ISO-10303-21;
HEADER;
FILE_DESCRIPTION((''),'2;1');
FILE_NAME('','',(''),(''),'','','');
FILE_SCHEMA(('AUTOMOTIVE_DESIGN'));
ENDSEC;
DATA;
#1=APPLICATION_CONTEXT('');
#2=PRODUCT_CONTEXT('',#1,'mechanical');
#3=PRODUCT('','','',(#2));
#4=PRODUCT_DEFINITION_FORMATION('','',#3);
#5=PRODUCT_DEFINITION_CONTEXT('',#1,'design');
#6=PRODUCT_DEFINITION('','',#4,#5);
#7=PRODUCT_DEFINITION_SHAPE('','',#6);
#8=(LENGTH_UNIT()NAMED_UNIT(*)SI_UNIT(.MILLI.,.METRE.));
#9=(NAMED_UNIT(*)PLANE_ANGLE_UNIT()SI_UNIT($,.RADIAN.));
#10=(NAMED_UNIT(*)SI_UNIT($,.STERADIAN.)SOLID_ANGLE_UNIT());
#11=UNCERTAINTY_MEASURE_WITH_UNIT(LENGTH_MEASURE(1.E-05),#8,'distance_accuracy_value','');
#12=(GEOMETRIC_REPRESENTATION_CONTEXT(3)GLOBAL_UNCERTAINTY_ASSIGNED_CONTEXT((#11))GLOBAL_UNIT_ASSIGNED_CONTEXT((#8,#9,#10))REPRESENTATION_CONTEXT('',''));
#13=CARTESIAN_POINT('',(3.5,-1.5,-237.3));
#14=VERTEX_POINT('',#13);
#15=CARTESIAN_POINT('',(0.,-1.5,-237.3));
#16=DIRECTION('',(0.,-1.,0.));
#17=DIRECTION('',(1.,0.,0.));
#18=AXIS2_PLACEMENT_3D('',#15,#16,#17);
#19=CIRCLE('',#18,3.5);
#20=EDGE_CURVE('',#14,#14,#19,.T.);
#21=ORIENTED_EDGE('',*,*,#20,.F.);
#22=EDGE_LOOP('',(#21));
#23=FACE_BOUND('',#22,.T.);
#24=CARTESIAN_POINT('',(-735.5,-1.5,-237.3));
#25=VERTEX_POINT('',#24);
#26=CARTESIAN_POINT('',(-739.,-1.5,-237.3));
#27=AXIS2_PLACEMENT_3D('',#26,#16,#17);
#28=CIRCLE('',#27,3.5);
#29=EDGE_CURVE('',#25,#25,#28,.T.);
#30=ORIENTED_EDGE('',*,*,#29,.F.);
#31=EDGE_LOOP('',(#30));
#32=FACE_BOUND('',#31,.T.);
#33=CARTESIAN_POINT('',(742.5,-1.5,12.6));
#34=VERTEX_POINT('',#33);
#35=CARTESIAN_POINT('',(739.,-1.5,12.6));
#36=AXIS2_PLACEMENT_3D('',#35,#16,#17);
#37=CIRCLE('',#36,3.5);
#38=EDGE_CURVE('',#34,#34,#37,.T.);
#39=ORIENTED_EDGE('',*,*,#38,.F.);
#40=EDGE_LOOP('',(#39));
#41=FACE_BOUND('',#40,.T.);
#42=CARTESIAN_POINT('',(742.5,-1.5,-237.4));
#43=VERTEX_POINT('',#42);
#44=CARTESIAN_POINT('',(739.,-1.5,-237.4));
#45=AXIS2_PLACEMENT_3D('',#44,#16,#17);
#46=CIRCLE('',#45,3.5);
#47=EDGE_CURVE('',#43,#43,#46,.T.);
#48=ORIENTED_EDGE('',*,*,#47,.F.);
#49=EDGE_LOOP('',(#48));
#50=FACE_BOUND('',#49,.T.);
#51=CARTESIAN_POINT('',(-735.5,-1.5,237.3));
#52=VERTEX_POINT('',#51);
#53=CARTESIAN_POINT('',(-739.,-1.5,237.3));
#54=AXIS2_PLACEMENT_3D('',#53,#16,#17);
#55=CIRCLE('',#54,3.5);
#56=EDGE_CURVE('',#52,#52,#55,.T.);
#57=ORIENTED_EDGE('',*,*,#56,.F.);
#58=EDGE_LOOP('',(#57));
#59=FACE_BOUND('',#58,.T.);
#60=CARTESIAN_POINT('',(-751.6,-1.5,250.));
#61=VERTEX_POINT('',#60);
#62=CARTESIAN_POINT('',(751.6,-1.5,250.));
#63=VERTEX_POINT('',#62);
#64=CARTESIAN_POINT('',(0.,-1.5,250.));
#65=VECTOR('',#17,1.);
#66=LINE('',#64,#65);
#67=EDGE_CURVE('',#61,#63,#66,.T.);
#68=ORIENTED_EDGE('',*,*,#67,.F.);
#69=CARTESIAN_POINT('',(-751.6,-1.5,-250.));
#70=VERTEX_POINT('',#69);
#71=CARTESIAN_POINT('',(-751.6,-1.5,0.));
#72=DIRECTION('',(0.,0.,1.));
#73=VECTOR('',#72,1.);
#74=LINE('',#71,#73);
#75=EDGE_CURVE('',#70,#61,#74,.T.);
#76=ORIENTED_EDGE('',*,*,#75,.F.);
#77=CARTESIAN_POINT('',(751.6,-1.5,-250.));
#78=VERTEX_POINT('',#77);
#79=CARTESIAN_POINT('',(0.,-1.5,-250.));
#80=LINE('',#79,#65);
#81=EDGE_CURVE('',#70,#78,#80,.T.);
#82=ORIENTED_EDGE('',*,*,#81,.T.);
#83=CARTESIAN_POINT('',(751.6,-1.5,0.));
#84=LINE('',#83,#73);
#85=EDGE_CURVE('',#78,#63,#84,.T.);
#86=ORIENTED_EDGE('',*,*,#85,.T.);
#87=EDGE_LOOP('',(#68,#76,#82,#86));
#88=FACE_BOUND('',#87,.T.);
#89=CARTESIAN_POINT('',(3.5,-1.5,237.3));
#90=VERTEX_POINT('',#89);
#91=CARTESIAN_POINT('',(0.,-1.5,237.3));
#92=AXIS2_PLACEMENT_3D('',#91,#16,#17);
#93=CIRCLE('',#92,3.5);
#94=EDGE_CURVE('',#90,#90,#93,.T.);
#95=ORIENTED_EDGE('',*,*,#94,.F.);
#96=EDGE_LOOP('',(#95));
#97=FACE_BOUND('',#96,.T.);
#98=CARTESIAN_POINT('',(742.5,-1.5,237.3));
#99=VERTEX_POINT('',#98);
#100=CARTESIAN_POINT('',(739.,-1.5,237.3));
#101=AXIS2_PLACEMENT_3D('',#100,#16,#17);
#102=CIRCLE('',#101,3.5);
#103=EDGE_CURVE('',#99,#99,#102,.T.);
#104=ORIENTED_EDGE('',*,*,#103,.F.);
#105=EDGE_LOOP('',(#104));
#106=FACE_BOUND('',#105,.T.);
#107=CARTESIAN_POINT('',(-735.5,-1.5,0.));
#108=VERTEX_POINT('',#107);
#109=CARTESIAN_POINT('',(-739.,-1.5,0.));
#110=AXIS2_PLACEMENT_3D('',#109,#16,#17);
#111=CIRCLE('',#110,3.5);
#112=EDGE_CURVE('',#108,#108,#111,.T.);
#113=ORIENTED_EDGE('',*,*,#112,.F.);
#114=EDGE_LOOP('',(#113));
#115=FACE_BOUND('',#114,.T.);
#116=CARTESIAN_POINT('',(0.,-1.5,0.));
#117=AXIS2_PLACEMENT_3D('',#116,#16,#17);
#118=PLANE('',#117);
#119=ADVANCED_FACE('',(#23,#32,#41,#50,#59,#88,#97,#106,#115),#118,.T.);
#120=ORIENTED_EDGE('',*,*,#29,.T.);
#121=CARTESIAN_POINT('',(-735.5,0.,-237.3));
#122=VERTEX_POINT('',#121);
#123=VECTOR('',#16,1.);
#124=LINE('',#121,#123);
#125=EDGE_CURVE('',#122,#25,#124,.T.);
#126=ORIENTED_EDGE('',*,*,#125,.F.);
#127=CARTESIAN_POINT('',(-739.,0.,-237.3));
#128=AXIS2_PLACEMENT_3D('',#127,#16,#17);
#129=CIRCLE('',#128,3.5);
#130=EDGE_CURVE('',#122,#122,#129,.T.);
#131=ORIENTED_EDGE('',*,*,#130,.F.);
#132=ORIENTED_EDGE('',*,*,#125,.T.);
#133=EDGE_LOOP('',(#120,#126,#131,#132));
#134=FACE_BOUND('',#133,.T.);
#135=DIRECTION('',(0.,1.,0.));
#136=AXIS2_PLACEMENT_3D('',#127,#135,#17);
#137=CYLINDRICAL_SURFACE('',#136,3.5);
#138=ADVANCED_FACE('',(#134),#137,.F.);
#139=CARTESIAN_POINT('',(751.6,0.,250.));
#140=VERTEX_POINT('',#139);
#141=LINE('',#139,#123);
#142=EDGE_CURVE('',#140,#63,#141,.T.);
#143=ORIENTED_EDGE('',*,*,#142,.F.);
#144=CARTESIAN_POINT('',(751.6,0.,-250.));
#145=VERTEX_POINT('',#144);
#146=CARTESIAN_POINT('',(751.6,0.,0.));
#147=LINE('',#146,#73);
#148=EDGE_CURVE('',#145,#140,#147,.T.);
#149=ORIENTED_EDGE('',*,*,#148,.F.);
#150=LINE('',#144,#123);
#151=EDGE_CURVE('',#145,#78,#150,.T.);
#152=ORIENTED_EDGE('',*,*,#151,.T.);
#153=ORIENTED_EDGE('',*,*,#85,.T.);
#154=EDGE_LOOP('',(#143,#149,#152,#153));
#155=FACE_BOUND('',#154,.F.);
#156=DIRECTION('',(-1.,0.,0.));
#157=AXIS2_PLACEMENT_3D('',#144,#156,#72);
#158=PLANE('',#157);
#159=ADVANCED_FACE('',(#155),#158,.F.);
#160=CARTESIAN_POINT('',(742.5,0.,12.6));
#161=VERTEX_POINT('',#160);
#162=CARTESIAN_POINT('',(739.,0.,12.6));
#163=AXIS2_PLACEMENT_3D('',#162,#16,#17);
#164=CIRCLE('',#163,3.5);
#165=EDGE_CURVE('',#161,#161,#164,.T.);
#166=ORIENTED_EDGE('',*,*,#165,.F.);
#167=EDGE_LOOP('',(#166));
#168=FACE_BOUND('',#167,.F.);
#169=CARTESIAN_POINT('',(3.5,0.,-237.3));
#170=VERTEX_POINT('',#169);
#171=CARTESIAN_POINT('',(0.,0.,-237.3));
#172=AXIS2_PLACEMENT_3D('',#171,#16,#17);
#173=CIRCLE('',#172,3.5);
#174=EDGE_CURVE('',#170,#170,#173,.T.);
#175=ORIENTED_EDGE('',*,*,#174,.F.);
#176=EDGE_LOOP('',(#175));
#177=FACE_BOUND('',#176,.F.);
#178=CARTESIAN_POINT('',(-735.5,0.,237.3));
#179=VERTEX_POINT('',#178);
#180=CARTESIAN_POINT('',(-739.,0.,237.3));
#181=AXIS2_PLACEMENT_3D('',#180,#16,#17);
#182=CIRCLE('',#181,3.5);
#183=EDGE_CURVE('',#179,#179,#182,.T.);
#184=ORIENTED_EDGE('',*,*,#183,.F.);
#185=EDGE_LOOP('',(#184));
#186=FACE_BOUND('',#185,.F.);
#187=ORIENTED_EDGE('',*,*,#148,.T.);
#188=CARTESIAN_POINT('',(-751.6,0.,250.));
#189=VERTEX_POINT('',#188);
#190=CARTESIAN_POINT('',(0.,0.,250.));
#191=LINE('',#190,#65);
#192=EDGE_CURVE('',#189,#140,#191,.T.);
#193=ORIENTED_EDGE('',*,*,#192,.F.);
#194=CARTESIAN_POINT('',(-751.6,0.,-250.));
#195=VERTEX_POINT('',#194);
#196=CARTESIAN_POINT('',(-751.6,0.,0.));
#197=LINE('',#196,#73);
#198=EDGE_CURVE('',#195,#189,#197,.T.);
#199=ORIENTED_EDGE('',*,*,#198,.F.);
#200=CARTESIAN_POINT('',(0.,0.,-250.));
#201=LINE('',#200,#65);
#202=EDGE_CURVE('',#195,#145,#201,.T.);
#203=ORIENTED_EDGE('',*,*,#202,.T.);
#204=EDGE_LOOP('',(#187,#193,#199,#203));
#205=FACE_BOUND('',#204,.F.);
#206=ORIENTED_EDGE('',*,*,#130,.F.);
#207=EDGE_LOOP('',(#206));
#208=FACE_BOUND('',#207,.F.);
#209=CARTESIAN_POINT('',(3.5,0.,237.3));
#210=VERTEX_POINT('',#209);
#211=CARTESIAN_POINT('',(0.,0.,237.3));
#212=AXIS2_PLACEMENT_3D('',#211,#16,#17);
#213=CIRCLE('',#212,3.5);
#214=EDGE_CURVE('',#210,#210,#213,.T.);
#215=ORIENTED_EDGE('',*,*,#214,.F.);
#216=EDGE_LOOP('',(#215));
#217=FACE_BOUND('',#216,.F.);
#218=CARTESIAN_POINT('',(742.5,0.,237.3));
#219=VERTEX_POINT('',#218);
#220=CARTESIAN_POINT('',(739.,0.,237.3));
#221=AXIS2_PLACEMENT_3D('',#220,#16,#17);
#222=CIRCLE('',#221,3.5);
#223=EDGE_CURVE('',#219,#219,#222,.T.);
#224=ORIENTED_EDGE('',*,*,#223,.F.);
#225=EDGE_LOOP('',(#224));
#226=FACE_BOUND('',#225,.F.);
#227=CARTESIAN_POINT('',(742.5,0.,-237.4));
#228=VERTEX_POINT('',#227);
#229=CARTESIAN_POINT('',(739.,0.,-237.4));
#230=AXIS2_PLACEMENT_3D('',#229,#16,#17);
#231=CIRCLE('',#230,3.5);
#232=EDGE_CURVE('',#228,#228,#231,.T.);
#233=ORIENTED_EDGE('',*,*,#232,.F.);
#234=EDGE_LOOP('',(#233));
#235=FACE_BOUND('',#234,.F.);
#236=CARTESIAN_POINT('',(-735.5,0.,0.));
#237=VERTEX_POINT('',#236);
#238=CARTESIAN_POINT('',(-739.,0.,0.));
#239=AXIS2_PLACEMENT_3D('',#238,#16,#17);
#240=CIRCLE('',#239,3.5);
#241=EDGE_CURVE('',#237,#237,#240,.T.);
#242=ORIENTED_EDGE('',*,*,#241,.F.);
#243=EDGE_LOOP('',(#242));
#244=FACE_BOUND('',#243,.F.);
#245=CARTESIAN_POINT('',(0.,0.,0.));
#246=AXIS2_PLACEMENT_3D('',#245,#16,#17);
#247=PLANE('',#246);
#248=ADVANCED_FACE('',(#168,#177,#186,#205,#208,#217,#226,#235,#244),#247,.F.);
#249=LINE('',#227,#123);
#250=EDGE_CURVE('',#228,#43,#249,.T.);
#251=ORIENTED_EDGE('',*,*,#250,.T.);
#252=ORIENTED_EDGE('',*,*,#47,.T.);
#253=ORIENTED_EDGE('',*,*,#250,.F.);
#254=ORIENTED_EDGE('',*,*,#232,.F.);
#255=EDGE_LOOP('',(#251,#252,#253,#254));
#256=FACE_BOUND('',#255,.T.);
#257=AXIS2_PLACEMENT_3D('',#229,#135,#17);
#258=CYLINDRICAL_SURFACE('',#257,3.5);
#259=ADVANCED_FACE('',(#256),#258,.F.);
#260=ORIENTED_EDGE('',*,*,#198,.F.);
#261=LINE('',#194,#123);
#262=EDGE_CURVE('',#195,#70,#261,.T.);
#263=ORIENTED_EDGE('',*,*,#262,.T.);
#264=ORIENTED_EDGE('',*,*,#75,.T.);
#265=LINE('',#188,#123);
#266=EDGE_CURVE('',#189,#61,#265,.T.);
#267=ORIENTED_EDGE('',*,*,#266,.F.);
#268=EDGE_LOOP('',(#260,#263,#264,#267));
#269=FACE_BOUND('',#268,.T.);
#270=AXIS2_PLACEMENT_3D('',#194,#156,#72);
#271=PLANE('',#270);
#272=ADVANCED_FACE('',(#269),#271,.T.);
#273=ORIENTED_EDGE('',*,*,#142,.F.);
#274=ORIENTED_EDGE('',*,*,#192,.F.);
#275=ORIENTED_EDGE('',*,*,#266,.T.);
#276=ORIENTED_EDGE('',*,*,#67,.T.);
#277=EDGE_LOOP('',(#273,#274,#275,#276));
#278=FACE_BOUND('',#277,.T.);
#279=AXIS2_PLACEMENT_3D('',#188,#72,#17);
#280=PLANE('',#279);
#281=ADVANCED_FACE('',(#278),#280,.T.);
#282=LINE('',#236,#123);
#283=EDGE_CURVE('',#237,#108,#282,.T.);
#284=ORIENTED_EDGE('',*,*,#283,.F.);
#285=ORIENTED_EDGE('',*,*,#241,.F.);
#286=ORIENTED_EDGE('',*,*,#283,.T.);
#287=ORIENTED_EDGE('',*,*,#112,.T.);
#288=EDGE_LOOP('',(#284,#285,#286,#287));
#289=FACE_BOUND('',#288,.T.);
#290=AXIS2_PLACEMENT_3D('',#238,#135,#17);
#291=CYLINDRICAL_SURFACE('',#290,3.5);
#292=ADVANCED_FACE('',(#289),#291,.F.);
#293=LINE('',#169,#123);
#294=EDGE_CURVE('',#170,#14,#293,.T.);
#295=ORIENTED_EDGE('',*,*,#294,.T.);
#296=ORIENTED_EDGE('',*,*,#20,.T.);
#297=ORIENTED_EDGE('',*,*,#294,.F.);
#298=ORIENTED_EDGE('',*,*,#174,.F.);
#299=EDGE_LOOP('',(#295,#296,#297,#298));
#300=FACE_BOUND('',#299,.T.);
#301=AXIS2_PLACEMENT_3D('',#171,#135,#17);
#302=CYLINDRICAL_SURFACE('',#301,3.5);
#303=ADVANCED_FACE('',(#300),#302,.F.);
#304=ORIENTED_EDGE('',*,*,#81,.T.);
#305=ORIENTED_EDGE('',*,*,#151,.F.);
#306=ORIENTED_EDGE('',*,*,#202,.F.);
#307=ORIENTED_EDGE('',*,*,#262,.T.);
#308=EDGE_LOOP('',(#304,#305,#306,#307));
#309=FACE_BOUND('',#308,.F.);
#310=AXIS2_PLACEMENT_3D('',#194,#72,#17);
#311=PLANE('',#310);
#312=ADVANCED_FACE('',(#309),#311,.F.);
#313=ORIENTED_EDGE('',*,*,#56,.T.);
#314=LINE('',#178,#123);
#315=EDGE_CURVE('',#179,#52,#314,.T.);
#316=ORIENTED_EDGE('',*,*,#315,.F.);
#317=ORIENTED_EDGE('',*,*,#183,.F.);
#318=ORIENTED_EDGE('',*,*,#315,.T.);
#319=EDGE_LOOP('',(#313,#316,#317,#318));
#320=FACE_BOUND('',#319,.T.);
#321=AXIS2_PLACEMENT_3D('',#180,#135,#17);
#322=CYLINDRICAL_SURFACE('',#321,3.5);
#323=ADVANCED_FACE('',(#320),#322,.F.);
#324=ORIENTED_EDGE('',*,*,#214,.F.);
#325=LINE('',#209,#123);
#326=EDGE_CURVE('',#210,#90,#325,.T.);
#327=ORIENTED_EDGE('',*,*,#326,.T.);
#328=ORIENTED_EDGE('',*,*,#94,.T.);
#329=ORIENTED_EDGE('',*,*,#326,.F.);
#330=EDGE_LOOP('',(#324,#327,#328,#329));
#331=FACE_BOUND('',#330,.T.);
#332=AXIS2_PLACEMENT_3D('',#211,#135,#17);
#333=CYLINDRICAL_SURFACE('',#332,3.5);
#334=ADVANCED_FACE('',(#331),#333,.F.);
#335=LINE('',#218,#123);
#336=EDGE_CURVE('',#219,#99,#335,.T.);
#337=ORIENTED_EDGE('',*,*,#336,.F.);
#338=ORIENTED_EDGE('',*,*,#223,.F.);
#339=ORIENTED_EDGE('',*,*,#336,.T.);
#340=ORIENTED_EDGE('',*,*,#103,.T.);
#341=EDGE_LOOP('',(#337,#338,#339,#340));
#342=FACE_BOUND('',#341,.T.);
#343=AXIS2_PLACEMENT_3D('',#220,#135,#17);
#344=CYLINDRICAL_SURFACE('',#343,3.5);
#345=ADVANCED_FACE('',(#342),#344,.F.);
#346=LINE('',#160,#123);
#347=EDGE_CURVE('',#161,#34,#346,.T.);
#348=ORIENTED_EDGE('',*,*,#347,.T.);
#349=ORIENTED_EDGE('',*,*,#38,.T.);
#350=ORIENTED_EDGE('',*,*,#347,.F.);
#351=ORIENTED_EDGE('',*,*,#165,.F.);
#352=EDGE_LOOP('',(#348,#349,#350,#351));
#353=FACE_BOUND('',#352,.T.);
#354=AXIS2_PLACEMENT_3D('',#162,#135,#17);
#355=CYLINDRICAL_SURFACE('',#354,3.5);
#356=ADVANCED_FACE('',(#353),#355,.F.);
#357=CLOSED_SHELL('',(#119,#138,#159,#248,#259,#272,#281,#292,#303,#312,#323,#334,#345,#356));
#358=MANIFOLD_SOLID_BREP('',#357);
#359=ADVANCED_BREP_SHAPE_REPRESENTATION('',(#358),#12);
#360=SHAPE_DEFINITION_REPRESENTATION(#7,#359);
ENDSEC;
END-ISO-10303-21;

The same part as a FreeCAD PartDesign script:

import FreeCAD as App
import Part
import Sketcher
Q = App.Units.Quantity


def add_polygon(sketch, points):
    """Adds a closed chain of lines whose ends are joined by coincident constraints."""
    first, n = sketch.GeometryCount, len(points)
    for a, b in zip(points, points[1:] + points[:1]):
        sketch.addGeometry(Part.LineSegment(App.Vector(*a, 0), App.Vector(*b, 0)), False)
    for i in range(n):
        sketch.addConstraint(Sketcher.Constraint("Coincident", first + i, 2, first + (i + 1) % n, 1))

doc = App.newDocument("Part")
body = doc.addObject("PartDesign::Body", "Body")

sketch1 = doc.addObject("Sketcher::SketchObject", "Sketch")
body.addObject(sketch1)
sketch1.AttachmentSupport = (doc.XZ_Plane, [""])
sketch1.MapMode = "FlatFace"
add_polygon(sketch1, [(-751.6, 250), (-751.6, -250), (751.6, -250), (751.6, 250)])
sketch1.addGeometry(Part.Circle(App.Vector(-739, -237.3, 0), App.Vector(0, 0, 1), 3.5), False)
sketch1.addGeometry(Part.Circle(App.Vector(0, -237.3, 0), App.Vector(0, 0, 1), 3.5), False)
sketch1.addGeometry(Part.Circle(App.Vector(739, -237.4, 0), App.Vector(0, 0, 1), 3.5), False)
sketch1.addGeometry(Part.Circle(App.Vector(-739, 0, 0), App.Vector(0, 0, 1), 3.5), False)
sketch1.addGeometry(Part.Circle(App.Vector(-739, 237.3, 0), App.Vector(0, 0, 1), 3.5), False)
sketch1.addGeometry(Part.Circle(App.Vector(739, 12.6, 0), App.Vector(0, 0, 1), 3.5), False)
sketch1.addGeometry(Part.Circle(App.Vector(0, 237.3, 0), App.Vector(0, 0, 1), 3.5), False)
sketch1.addGeometry(Part.Circle(App.Vector(739, 237.3, 0), App.Vector(0, 0, 1), 3.5), False)
sketch1.addConstraint([
    Sketcher.Constraint("Vertical", 0),
    Sketcher.Constraint("Horizontal", 1),
    Sketcher.Constraint("Vertical", 2),
    Sketcher.Constraint("Horizontal", 3),
    Sketcher.Constraint("Equal", 4, 5),
    Sketcher.Constraint("Equal", 5, 6),
    Sketcher.Constraint("Equal", 6, 7),
    Sketcher.Constraint("Equal", 7, 8),
    Sketcher.Constraint("Equal", 8, 9),
    Sketcher.Constraint("Equal", 9, 10),
    Sketcher.Constraint("Equal", 10, 11),
    Sketcher.Constraint("Symmetric", 5, 3, 10, 3, -1, 1),
    Sketcher.Constraint("Symmetric", 4, 3, 11, 3, -1, 1),
    Sketcher.Constraint("Symmetric", 0, 2, 2, 2, -1, 1),
    Sketcher.Constraint("Symmetric", 8, 3, 11, 3, -2),
    Sketcher.Constraint("PointOnObject", 5, 3, -2),
    Sketcher.Constraint("PointOnObject", 7, 3, -1),
    Sketcher.Constraint("Horizontal", 4, 3, 5, 3),
    Sketcher.Constraint("Vertical", 4, 3, 7, 3),
    Sketcher.Constraint("Vertical", 6, 3, 9, 3),
    Sketcher.Constraint("Vertical", 9, 3, 11, 3),
    Sketcher.Constraint("Diameter", 4, Q("7 mm")),
    Sketcher.Constraint("DistanceY", 0, 2, 0, 1, Q("500 mm")),
    Sketcher.Constraint("DistanceX", 1, 1, 1, 2, Q("1503.2 mm")),
    Sketcher.Constraint("DistanceX", 4, 3, -1, 1, Q("739 mm")),
    Sketcher.Constraint("DistanceY", 6, 3, 9, 3, Q("250 mm")),
    Sketcher.Constraint("DistanceY", 4, 3, -1, 1, Q("237.3 mm")),
    Sketcher.Constraint("DistanceY", 6, 3, -1, 1, Q("237.4 mm")),
])
pad1 = doc.addObject("PartDesign::Pad", "Pad")
body.addObject(pad1)
pad1.Profile = sketch1
pad1.Length = 1.5

doc.recompute()
